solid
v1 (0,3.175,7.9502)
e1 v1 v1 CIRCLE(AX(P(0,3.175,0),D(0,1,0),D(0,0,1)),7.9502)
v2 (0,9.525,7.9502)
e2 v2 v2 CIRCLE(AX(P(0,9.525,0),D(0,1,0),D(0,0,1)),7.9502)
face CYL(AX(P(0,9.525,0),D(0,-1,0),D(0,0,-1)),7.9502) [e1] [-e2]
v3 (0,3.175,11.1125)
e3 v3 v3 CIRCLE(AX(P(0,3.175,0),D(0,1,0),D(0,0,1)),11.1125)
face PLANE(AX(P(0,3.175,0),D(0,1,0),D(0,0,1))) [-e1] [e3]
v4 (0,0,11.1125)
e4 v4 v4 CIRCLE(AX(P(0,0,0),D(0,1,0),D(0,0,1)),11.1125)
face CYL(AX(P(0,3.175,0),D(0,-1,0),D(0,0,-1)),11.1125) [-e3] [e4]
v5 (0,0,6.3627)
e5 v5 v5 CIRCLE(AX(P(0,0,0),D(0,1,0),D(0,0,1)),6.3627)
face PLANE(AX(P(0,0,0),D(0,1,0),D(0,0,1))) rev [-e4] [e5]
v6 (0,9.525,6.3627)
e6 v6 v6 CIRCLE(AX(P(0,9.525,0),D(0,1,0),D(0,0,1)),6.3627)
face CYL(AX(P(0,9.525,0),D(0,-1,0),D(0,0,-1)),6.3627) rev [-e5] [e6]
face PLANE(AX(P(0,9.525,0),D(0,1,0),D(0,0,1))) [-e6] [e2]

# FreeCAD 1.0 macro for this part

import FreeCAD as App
import Part
import Sketcher

V = App.Vector
Q = App.Units.Quantity

doc = App.newDocument("Part")
params = doc.addObject("Spreadsheet::Sheet", "Params")
for row, (alias, value) in enumerate([
    ("sketch1_diameter", "0.626 in"),
    ("sketch1_diameter2", "0.501 in"),
    ("pad1_length", "0.375 in"),
    ("sketch2_diameter", "0.875 in"),
    ("sketch2_diameter2", "0.626 in"),
    ("pad2_length", "0.125 in"),
], start=1):
    params.set(f"A{row}", alias)
    params.set(f"B{row}", "=" + value)
    params.setAlias(f"B{row}", alias)

body = doc.addObject("PartDesign::Body", "Body")

# Sketch on XZ plane
sketch1 = body.newObject("Sketcher::SketchObject", "Sketch")
sketch1.AttachmentSupport = (doc.getObject("XZ_Plane"), [""])
sketch1.MapMode = "FlatFace"
sketch1.addGeometry([
    Part.Circle(V(0, 0, 0), V(0, 0, 1), 8),
    Part.Circle(V(0, 0, 0), V(0, 0, 1), 6),
], False)
sketch1.addConstraint([
    Sketcher.Constraint("Coincident", 0, 3, -1, 1),
    Sketcher.Constraint("Coincident", 1, 3, -1, 1),
    Sketcher.Constraint("Diameter", 0, Q("0.626 in")),
    Sketcher.Constraint("Diameter", 1, Q("0.501 in")),
])
sketch1.setExpression("Constraints[2]", "Params.sketch1_diameter")
sketch1.setExpression("Constraints[3]", "Params.sketch1_diameter2")
pad1 = body.newObject("PartDesign::Pad", "Pad")
pad1.Profile = sketch1
pad1.setExpression("Length", "Params.pad1_length")
pad1.Reversed = True

# Sketch on XZ plane
sketch2 = body.newObject("Sketcher::SketchObject", "Sketch001")
sketch2.AttachmentSupport = (doc.getObject("XZ_Plane"), [""])
sketch2.MapMode = "FlatFace"
sketch2.addGeometry([
    Part.Circle(V(0, 0, 0), V(0, 0, 1), 11),
    Part.Circle(V(0, 0, 0), V(0, 0, 1), 8),
], False)
sketch2.addConstraint([
    Sketcher.Constraint("Coincident", 0, 3, -1, 1),
    Sketcher.Constraint("Coincident", 1, 3, -1, 1),
    Sketcher.Constraint("Diameter", 0, Q("0.875 in")),
    Sketcher.Constraint("Diameter", 1, Q("0.626 in")),
])
sketch2.setExpression("Constraints[2]", "Params.sketch2_diameter")
sketch2.setExpression("Constraints[3]", "Params.sketch2_diameter2")
pad2 = body.newObject("PartDesign::Pad", "Pad001")
pad2.Profile = sketch2
pad2.setExpression("Length", "Params.pad2_length")
pad2.Reversed = True

doc.recompute()
